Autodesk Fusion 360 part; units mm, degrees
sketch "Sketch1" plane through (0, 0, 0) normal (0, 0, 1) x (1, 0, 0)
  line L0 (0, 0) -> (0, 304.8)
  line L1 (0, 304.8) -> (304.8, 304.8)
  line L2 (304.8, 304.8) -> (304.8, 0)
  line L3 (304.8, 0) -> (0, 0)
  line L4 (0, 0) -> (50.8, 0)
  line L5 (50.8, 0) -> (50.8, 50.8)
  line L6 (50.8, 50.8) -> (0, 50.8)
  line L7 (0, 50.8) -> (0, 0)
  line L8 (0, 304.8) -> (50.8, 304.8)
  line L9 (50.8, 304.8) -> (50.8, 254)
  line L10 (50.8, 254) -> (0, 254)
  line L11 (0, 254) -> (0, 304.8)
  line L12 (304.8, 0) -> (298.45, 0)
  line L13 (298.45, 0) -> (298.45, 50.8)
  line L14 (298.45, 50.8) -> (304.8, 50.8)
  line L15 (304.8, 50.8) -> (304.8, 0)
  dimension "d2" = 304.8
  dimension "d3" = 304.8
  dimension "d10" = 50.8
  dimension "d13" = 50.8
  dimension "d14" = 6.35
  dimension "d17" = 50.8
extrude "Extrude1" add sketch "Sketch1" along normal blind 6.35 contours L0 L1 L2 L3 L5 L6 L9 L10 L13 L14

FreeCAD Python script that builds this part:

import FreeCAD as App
import Part
import Sketcher
from FreeCAD import Vector
Q = App.Units.Quantity


def add_polygon(sketch, points):
    """Adds a closed chain of lines whose ends are joined by coincident constraints."""
    first, n = sketch.GeometryCount, len(points)
    for a, b in zip(points, points[1:] + points[:1]):
        sketch.addGeometry(Part.LineSegment(App.Vector(*a, 0), App.Vector(*b, 0)), False)
    for i in range(n):
        sketch.addConstraint(Sketcher.Constraint("Coincident", first + i, 2, first + (i + 1) % n, 1))

doc = App.newDocument("Part")
body = doc.addObject("PartDesign::Body", "Body")

# Sketch on XY plane
sketch1 = body.newObject("Sketcher::SketchObject", "Sketch")
sketch1.AttachmentSupport = (doc.getObject("XY_Plane"), [""])
sketch1.MapMode = "FlatFace"
add_polygon(sketch1, [(0, 254), (0, 51), (51, 51), (51, 0), (298, 0), (298, 51), (305, 51), (305, 305), (51, 305), (51, 254)])  # lines 0-9
sketch1.addConstraint(Sketcher.Constraint("Vertical", 0))
sketch1.addConstraint(Sketcher.Constraint("Horizontal", 1))
sketch1.addConstraint(Sketcher.Constraint("Vertical", 2))
sketch1.addConstraint(Sketcher.Constraint("Horizontal", 3))
sketch1.addConstraint(Sketcher.Constraint("Vertical", 4))
sketch1.addConstraint(Sketcher.Constraint("Horizontal", 5))
sketch1.addConstraint(Sketcher.Constraint("Vertical", 6))
sketch1.addConstraint(Sketcher.Constraint("Horizontal", 7))
sketch1.addConstraint(Sketcher.Constraint("Vertical", 8))
sketch1.addConstraint(Sketcher.Constraint("Horizontal", 9))
sketch1.addConstraint(Sketcher.Constraint("PointOnObject", 0, 2, -2))
sketch1.addConstraint(Sketcher.Constraint("PointOnObject", 2, 2, -1))
sketch1.addConstraint(Sketcher.Constraint("Horizontal", 1, 2, 4, 2))
sketch1.addConstraint(Sketcher.Constraint("Vertical", 2, 2, 7, 2))
sketch1.addConstraint(Sketcher.Constraint("Equal", 9, 2))
sketch1.addConstraint(Sketcher.Constraint("Equal", 7, 6))
sketch1.addConstraint(Sketcher.Constraint("Equal", 4, 8))
sketch1.addConstraint(Sketcher.Constraint("DistanceX", 1, 1, 1, 2, Q("2 in")))
sketch1.addConstraint(Sketcher.Constraint("DistanceX", -1, 1, 5, 2, Q("12 in")))
sketch1.addConstraint(Sketcher.Constraint("DistanceX", 5, 1, 5, 2, Q("0.25 in")))
pad1 = body.newObject("PartDesign::Pad", "Pad")
pad1.Profile = sketch1
pad1.Length = Q("0.25 in")

doc.recompute()
